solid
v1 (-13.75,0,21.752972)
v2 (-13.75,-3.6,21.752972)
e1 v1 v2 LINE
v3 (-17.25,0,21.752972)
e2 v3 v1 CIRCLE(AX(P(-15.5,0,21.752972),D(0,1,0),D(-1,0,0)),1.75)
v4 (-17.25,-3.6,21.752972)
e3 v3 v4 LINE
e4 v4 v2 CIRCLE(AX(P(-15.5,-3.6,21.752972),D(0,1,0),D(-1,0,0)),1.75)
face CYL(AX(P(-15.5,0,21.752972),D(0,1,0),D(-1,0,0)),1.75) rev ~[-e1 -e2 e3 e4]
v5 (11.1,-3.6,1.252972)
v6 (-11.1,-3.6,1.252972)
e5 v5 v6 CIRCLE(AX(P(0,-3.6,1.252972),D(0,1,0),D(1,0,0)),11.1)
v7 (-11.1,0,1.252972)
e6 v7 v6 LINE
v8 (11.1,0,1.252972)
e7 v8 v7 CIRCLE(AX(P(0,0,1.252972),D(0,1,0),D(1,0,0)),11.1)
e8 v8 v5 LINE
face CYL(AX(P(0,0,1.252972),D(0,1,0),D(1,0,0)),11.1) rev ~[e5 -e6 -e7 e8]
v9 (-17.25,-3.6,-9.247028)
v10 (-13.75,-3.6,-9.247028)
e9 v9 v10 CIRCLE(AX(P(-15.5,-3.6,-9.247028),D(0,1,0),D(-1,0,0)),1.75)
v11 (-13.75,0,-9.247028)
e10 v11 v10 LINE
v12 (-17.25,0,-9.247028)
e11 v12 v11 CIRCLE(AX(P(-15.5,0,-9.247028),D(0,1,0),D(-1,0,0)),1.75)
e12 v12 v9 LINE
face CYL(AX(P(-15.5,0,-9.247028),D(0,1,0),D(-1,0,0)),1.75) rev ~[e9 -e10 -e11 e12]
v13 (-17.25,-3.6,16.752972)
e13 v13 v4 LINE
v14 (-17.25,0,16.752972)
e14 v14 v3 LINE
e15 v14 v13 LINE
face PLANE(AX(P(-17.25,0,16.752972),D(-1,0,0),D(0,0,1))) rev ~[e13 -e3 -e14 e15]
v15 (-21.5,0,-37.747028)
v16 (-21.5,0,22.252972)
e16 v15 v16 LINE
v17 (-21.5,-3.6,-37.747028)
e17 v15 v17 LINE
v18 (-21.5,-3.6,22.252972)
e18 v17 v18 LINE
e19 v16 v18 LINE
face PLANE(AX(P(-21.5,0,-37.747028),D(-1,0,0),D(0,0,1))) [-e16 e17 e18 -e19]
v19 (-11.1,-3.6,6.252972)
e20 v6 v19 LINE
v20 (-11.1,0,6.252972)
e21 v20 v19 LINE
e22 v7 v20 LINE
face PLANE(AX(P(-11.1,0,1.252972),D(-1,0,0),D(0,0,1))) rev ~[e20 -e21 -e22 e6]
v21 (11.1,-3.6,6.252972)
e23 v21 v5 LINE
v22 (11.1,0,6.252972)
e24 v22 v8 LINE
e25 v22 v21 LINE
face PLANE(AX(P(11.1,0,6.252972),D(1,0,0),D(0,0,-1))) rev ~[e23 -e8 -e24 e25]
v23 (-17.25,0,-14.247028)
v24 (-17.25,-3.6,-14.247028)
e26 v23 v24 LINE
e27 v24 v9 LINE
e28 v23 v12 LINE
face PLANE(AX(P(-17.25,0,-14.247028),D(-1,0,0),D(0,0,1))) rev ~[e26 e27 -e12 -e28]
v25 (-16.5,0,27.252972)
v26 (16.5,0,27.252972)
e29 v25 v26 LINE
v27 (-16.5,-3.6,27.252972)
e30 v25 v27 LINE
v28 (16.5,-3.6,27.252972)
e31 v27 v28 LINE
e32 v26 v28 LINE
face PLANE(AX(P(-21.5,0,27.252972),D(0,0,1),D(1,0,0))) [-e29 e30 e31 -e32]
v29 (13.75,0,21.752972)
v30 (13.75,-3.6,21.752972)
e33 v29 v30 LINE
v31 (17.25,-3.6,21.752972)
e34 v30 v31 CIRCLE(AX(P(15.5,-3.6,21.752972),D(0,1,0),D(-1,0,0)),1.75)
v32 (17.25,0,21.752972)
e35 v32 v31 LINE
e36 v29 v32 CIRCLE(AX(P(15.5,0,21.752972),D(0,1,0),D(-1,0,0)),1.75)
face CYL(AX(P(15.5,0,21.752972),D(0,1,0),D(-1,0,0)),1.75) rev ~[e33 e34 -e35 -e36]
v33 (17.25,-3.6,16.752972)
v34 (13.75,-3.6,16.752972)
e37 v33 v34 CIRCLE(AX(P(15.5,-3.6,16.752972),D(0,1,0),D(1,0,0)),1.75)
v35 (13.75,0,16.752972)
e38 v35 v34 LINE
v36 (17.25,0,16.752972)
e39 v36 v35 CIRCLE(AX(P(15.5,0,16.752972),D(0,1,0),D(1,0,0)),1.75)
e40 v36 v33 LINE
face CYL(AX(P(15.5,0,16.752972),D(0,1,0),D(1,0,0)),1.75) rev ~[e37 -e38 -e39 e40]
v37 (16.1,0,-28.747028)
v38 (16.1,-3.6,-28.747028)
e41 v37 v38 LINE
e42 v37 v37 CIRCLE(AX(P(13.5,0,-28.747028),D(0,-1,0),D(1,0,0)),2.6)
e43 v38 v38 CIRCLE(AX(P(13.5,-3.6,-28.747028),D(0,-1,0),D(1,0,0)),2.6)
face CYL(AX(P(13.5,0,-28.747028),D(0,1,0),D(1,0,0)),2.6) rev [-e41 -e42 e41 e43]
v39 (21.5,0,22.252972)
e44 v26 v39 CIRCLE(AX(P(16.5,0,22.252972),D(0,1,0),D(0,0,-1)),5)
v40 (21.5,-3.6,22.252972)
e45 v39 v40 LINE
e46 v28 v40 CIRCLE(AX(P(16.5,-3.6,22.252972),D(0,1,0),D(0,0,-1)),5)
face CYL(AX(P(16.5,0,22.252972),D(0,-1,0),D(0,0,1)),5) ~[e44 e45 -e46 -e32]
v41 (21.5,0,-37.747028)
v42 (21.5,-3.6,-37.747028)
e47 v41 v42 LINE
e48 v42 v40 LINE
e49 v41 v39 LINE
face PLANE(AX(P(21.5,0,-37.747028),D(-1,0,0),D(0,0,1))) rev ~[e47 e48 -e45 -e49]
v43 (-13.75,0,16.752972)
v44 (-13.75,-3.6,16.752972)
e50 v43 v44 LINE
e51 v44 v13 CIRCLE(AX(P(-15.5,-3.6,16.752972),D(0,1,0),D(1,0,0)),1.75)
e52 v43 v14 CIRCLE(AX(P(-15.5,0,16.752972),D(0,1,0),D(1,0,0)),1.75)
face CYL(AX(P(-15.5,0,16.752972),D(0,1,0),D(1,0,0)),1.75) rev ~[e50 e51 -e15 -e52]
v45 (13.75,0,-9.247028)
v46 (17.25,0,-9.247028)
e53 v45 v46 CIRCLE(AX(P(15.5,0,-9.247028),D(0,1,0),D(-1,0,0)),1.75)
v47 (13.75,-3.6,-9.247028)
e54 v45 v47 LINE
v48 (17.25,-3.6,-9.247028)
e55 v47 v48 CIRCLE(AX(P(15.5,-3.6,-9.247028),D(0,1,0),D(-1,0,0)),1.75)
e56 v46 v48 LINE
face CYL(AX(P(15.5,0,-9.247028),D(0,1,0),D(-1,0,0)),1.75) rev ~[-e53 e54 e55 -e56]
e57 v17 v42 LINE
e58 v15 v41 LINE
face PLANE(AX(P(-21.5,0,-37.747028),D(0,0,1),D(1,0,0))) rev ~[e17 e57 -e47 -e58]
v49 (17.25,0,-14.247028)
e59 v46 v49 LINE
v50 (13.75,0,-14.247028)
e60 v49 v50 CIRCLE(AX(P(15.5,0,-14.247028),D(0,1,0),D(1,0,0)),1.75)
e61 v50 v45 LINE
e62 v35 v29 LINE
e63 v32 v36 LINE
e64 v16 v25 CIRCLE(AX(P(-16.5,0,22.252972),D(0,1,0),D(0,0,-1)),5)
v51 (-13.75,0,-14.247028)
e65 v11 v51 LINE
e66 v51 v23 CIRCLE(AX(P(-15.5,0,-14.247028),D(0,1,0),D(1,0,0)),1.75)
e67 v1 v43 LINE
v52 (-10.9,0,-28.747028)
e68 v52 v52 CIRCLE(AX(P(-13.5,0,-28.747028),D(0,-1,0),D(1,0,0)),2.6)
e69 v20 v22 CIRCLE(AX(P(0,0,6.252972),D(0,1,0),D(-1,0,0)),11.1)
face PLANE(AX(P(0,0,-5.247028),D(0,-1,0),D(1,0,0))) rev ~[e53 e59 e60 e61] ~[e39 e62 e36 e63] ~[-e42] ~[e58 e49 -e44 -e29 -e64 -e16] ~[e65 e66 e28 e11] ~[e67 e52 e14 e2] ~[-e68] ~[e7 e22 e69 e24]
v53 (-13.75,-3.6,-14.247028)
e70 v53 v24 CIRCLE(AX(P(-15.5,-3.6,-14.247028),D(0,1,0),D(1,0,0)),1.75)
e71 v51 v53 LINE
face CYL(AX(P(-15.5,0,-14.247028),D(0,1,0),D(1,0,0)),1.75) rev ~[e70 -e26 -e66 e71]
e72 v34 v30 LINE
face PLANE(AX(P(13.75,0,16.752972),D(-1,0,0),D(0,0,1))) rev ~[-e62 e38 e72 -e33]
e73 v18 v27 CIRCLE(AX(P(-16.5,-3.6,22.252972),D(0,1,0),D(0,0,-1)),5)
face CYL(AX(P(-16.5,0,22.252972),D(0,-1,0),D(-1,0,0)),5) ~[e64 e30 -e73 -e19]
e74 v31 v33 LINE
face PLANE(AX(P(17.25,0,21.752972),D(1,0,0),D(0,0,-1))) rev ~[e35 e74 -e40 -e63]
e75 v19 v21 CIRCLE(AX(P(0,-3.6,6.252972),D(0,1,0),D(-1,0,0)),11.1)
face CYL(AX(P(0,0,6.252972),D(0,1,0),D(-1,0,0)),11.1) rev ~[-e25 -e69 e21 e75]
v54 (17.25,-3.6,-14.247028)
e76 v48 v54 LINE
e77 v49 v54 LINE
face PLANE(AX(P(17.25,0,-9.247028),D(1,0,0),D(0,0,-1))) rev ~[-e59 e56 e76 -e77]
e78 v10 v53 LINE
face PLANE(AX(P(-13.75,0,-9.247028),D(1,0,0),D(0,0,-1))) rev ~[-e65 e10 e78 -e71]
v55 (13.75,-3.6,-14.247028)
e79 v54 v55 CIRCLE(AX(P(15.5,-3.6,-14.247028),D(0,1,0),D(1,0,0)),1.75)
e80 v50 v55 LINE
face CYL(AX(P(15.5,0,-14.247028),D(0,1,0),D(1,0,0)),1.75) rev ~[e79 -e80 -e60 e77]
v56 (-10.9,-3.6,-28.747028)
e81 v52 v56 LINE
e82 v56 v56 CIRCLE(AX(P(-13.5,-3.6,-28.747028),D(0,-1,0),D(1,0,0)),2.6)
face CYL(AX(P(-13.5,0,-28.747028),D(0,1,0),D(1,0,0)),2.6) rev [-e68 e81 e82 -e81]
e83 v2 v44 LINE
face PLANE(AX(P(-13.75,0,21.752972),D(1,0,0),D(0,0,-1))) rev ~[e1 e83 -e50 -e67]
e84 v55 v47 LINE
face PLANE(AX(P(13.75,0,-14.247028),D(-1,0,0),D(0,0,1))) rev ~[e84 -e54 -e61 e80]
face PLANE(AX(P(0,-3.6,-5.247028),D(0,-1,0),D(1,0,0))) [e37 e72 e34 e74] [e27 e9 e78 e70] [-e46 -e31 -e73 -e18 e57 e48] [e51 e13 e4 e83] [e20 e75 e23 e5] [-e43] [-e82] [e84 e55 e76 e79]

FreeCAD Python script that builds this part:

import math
import FreeCAD as App
import Part
import Sketcher
Q = App.Units.Quantity


def edges_at(feature, points):
    """Names of the edges that pass closest to the given points."""
    edges = feature.Shape.Edges
    near = lambda p: min(range(len(edges)), key=lambda i: edges[i].distToShape(Part.Vertex(*p))[0])
    return sorted({f"Edge{near(p) + 1}" for p in points})


def add_polygon(sketch, points):
    """Adds a closed chain of lines whose ends are joined by coincident constraints."""
    first, n = sketch.GeometryCount, len(points)
    for a, b in zip(points, points[1:] + points[:1]):
        sketch.addGeometry(Part.LineSegment(App.Vector(*a, 0), App.Vector(*b, 0)), False)
    for i in range(n):
        sketch.addConstraint(Sketcher.Constraint("Coincident", first + i, 2, first + (i + 1) % n, 1))

doc = App.newDocument("Part")
body = doc.addObject("PartDesign::Body", "Body")

# Sketch on XZ plane
sketch1 = body.newObject("Sketcher::SketchObject", "Sketch")
sketch1.AttachmentSupport = (doc.getObject("XZ_Plane"), [""])
sketch1.MapMode = "FlatFace"
add_polygon(sketch1, [(-21.5, 27.252972), (-21.5, -37.747028), (21.5, -37.747028), (21.5, 27.252972)])  # lines 0-3
sketch1.addGeometry(Part.Circle(App.Vector(-13.5, -28.747028, 0), App.Vector(0, 0, 1), 2.6), False)  # 4
sketch1.addGeometry(Part.LineSegment(App.Vector(-17.25, -14.247028, 0), App.Vector(-17.25, -9.247028, 0)), False)  # 5
sketch1.addGeometry(Part.ArcOfCircle(Part.Circle(App.Vector(-15.5, -9.247028, 0), App.Vector(0, 0, 1), 1.75), math.radians(0), math.radians(180)), False)  # 6
sketch1.addGeometry(Part.LineSegment(App.Vector(-13.75, -9.247028, 0), App.Vector(-13.75, -14.247028, 0)), False)  # 7
sketch1.addGeometry(Part.ArcOfCircle(Part.Circle(App.Vector(-15.5, -14.247028, 0), App.Vector(0, 0, 1), 1.75), math.radians(180), math.radians(360)), False)  # 8
sketch1.addGeometry(Part.Circle(App.Vector(13.5, -28.747028, 0), App.Vector(0, 0, 1), 2.6), False)  # 9
sketch1.addGeometry(Part.LineSegment(App.Vector(13.75, -14.247028, 0), App.Vector(13.75, -9.247028, 0)), False)  # 10
sketch1.addGeometry(Part.ArcOfCircle(Part.Circle(App.Vector(15.5, -9.247028, 0), App.Vector(0, 0, 1), 1.75), math.radians(0), math.radians(180)), False)  # 11
sketch1.addGeometry(Part.LineSegment(App.Vector(17.25, -9.247028, 0), App.Vector(17.25, -14.247028, 0)), False)  # 12
sketch1.addGeometry(Part.ArcOfCircle(Part.Circle(App.Vector(15.5, -14.247028, 0), App.Vector(0, 0, 1), 1.75), math.radians(180), math.radians(360)), False)  # 13
sketch1.addGeometry(Part.LineSegment(App.Vector(-17.25, 16.752972, 0), App.Vector(-17.25, 21.752972, 0)), False)  # 14
sketch1.addGeometry(Part.ArcOfCircle(Part.Circle(App.Vector(-15.5, 21.752972, 0), App.Vector(0, 0, 1), 1.75), math.radians(0), math.radians(180)), False)  # 15
sketch1.addGeometry(Part.LineSegment(App.Vector(-13.75, 21.752972, 0), App.Vector(-13.75, 16.752972, 0)), False)  # 16
sketch1.addGeometry(Part.ArcOfCircle(Part.Circle(App.Vector(-15.5, 16.752972, 0), App.Vector(0, 0, 1), 1.75), math.radians(180), math.radians(360)), False)  # 17
sketch1.addGeometry(Part.LineSegment(App.Vector(11.1, 6.252972, 0), App.Vector(11.1, 1.252972, 0)), False)  # 18
sketch1.addGeometry(Part.ArcOfCircle(Part.Circle(App.Vector(0, 1.252972, 0), App.Vector(0, 0, 1), 11.1), math.radians(180), math.radians(360)), False)  # 19
sketch1.addGeometry(Part.LineSegment(App.Vector(-11.1, 1.252972, 0), App.Vector(-11.1, 6.252972, 0)), False)  # 20
sketch1.addGeometry(Part.ArcOfCircle(Part.Circle(App.Vector(0, 6.252972, 0), App.Vector(0, 0, 1), 11.1), math.radians(0), math.radians(180)), False)  # 21
sketch1.addGeometry(Part.LineSegment(App.Vector(13.75, 16.752972, 0), App.Vector(13.75, 21.752972, 0)), False)  # 22
sketch1.addGeometry(Part.ArcOfCircle(Part.Circle(App.Vector(15.5, 21.752972, 0), App.Vector(0, 0, 1), 1.75), math.radians(0), math.radians(180)), False)  # 23
sketch1.addGeometry(Part.LineSegment(App.Vector(17.25, 21.752972, 0), App.Vector(17.25, 16.752972, 0)), False)  # 24
sketch1.addGeometry(Part.ArcOfCircle(Part.Circle(App.Vector(15.5, 16.752972, 0), App.Vector(0, 0, 1), 1.75), math.radians(180), math.radians(360)), False)  # 25
sketch1.addConstraint([
    Sketcher.Constraint("Tangent", 5, 2, 6, 2),
    Sketcher.Constraint("Tangent", 6, 1, 7, 1),
    Sketcher.Constraint("Tangent", 7, 2, 8, 2),
    Sketcher.Constraint("Tangent", 8, 1, 5, 1),
    Sketcher.Constraint("Tangent", 10, 2, 11, 2),
    Sketcher.Constraint("Tangent", 11, 1, 12, 1),
    Sketcher.Constraint("Tangent", 12, 2, 13, 2),
    Sketcher.Constraint("Tangent", 13, 1, 10, 1),
    Sketcher.Constraint("Tangent", 14, 2, 15, 2),
    Sketcher.Constraint("Tangent", 15, 1, 16, 1),
    Sketcher.Constraint("Tangent", 16, 2, 17, 2),
    Sketcher.Constraint("Tangent", 17, 1, 14, 1),
    Sketcher.Constraint("Tangent", 18, 2, 19, 2),
    Sketcher.Constraint("Tangent", 19, 1, 20, 1),
    Sketcher.Constraint("Tangent", 20, 2, 21, 2),
    Sketcher.Constraint("Tangent", 21, 1, 18, 1),
    Sketcher.Constraint("Tangent", 22, 2, 23, 2),
    Sketcher.Constraint("Tangent", 23, 1, 24, 1),
    Sketcher.Constraint("Tangent", 24, 2, 25, 2),
    Sketcher.Constraint("Tangent", 25, 1, 22, 1),
    Sketcher.Constraint("Vertical", 0),
    Sketcher.Constraint("Horizontal", 1),
    Sketcher.Constraint("Vertical", 2),
    Sketcher.Constraint("Horizontal", 3),
    Sketcher.Constraint("Vertical", 5),
    Sketcher.Constraint("Vertical", 7),
    Sketcher.Constraint("Vertical", 10),
    Sketcher.Constraint("Vertical", 12),
    Sketcher.Constraint("Vertical", 14),
    Sketcher.Constraint("Vertical", 16),
    Sketcher.Constraint("Vertical", 18),
    Sketcher.Constraint("Vertical", 20),
    Sketcher.Constraint("Vertical", 22),
    Sketcher.Constraint("Vertical", 24),
    Sketcher.Constraint("Equal", 4, 9),
    Sketcher.Constraint("Equal", 8, 11),
    Sketcher.Constraint("Equal", 13, 15),
    Sketcher.Constraint("Equal", 17, 23),
    Sketcher.Constraint("Symmetric", 4, 3, 9, 3, -2),
    Sketcher.Constraint("Symmetric", 6, 3, 11, 3, -2),
    Sketcher.Constraint("Symmetric", 15, 3, 23, 3, -2),
    Sketcher.Constraint("PointOnObject", 19, 3, -2),
    Sketcher.Constraint("Horizontal", 8, 3, 13, 3),
    Sketcher.Constraint("Horizontal", 17, 3, 25, 3),
    Sketcher.Constraint("Vertical", 8, 3, 15, 3),
    Sketcher.Constraint("Equal", 12, 14),
    Sketcher.Constraint("Equal", 16, 18),
    Sketcher.Constraint("Diameter", 4, Q("5.2 mm")),
    Sketcher.Constraint("Radius", 19, Q("11.1 mm")),
    Sketcher.Constraint("DistanceX", 1, 1, 1, 2, Q("43 mm")),
    Sketcher.Constraint("DistanceY", 0, 2, 0, 1, Q("65 mm")),
    Sketcher.Constraint("DistanceY", 5, 1, 5, 2, Q("5 mm")),
    Sketcher.Constraint("Radius", 6, Q("1.75 mm")),
    Sketcher.Constraint("DistanceX", 6, 3, 4, 3, Q("2 mm")),
    Sketcher.Constraint("DistanceX", 4, 3, 9, 3, Q("27 mm")),
    Sketcher.Constraint("DistanceY", 6, 3, 15, 3, Q("31 mm")),
    Sketcher.Constraint("DistanceX", 0, 2, 4, 3, Q("8 mm")),
    Sketcher.Constraint("DistanceY", 0, 2, 4, 3, Q("9 mm")),
    Sketcher.Constraint("DistanceY", 21, 3, 2, 2, Q("21 mm")),
    Sketcher.Constraint("DistanceY", 4, 3, 6, 3, Q("19.5 mm")),
    Sketcher.Constraint("DistanceY", 4, 3, -1, 1, Q("28.747028 mm")),
])
pad1 = body.newObject("PartDesign::Pad", "Pad")
pad1.Profile = sketch1
pad1.Length = 3.6
doc.recompute()

fillet = body.newObject("PartDesign::Fillet", "Fillet")
fillet.Base = (pad1, edges_at(pad1, [(-21.5, -1.8, 27.253), (21.5, -1.8, 27.253)]))
fillet.Radius = 5

doc.recompute()
